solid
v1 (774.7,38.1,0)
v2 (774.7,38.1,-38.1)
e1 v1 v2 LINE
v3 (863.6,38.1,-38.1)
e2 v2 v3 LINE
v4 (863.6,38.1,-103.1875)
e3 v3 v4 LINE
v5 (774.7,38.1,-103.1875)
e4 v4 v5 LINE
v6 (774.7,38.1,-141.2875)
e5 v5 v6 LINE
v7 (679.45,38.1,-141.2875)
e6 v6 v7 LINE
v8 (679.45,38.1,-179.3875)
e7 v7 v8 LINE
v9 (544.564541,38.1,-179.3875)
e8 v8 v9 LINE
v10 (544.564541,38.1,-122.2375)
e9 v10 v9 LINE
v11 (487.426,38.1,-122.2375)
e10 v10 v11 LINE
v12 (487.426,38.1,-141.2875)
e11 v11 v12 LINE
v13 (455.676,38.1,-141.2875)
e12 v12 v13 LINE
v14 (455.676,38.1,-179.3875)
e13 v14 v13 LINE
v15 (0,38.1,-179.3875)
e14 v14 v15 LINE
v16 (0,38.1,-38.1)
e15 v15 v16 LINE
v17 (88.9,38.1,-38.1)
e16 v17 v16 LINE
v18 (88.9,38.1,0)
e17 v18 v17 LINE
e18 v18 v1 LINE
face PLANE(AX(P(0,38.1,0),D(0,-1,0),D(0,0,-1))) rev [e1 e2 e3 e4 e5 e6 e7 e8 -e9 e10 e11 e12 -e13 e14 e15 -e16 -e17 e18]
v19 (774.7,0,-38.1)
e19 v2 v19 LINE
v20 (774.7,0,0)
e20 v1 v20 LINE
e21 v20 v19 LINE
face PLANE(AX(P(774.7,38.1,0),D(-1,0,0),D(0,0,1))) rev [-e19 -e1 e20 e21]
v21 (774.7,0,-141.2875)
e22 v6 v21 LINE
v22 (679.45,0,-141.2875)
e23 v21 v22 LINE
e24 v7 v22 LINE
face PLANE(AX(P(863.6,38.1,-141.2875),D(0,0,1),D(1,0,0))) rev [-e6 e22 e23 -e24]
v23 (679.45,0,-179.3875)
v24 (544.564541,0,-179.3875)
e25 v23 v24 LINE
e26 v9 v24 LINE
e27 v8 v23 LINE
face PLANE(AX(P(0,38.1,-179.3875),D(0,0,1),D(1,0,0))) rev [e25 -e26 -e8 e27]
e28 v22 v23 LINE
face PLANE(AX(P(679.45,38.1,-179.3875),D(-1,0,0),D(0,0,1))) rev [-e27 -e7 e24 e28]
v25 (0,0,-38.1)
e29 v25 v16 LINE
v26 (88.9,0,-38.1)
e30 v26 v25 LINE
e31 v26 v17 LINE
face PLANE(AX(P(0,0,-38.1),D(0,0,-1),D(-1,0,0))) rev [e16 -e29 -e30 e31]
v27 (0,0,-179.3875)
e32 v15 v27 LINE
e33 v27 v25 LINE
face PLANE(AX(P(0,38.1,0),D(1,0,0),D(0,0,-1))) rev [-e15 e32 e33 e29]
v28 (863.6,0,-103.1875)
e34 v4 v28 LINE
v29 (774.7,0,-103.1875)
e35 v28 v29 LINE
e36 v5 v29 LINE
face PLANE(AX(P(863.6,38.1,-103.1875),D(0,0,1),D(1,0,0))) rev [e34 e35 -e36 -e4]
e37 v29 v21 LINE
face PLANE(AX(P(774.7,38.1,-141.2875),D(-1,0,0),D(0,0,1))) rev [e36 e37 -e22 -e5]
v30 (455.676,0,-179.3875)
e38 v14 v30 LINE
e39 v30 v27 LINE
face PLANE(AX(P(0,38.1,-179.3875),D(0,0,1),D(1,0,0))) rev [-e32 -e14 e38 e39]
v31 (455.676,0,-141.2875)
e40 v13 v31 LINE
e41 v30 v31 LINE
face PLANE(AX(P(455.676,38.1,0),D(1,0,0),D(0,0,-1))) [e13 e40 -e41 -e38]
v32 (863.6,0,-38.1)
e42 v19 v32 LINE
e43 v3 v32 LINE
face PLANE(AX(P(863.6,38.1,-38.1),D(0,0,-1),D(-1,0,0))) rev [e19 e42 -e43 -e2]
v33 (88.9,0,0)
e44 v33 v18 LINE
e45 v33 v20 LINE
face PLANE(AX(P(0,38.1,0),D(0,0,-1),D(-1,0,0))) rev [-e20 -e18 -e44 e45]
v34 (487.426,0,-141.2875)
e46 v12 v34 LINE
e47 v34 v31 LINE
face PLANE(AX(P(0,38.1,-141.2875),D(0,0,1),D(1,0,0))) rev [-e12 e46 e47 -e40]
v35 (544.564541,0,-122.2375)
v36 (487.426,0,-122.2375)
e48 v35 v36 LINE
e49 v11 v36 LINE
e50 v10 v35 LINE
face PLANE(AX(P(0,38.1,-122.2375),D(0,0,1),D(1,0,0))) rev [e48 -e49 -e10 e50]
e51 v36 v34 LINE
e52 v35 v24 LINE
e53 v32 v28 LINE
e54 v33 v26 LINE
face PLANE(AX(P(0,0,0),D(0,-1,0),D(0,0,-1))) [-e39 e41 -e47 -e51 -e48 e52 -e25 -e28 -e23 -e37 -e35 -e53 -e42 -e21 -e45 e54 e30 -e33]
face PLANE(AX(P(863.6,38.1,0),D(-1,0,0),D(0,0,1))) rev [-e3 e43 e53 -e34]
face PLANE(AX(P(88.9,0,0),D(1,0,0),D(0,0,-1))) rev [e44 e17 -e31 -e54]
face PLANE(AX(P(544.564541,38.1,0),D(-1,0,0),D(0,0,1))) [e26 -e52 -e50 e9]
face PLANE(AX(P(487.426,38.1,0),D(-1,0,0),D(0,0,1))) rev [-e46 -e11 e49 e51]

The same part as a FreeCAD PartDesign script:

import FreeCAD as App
import Part
import Sketcher
from FreeCAD import Vector
Q = App.Units.Quantity


def add_polygon(sketch, points):
    """Adds a closed chain of lines whose ends are joined by coincident constraints."""
    first, n = sketch.GeometryCount, len(points)
    for a, b in zip(points, points[1:] + points[:1]):
        sketch.addGeometry(Part.LineSegment(App.Vector(*a, 0), App.Vector(*b, 0)), False)
    for i in range(n):
        sketch.addConstraint(Sketcher.Constraint("Coincident", first + i, 2, first + (i + 1) % n, 1))

doc = App.newDocument("Part")
body = doc.addObject("PartDesign::Body", "Body")

sketch1 = body.newObject("Sketcher::SketchObject", "Sketch")
sketch1.AttachmentSupport = (doc.getObject("XZ_Plane"), [""])
sketch1.MapMode = "FlatFace"
add_polygon(sketch1, [(0, -179), (0, 0), (864, 0), (864, -179)])
sketch1.addConstraint(Sketcher.Constraint("Vertical", 0))
sketch1.addConstraint(Sketcher.Constraint("Horizontal", 1))
sketch1.addConstraint(Sketcher.Constraint("Vertical", 2))
sketch1.addConstraint(Sketcher.Constraint("Horizontal", 3))
sketch1.addConstraint(Sketcher.Constraint("Coincident", 0, 2, -1, 1))
sketch1.addConstraint(Sketcher.Constraint("DistanceX", 1, 1, 1, 2, Q("34 in")))
sketch1.addConstraint(Sketcher.Constraint("DistanceY", 0, 1, 0, 2, Q("7.0625 in")))
pad1 = body.newObject("PartDesign::Pad", "Pad")
pad1.Profile = sketch1
pad1.Length = Q("1.5 in")
pad1.Reversed = True

sketch2 = body.newObject("Sketcher::SketchObject", "Sketch001")
sketch2.AttachmentSupport = (doc.getObject("XZ_Plane"), [""])
sketch2.MapMode = "FlatFace"
add_polygon(sketch2, [(775, 0), (775, -38), (864, -38), (864, 0)])
sketch2.addConstraint(Sketcher.Constraint("Vertical", 0))
sketch2.addConstraint(Sketcher.Constraint("Horizontal", 1))
sketch2.addConstraint(Sketcher.Constraint("Vertical", 2))
sketch2.addConstraint(Sketcher.Constraint("Horizontal", 3))
sketch2.addConstraint(Sketcher.Constraint("PointOnObject", 2, 2, -1))
sketch2.addConstraint(Sketcher.Constraint("DistanceX", 1, 1, 1, 2, Q("3.5 in")))
sketch2.addConstraint(Sketcher.Constraint("DistanceY", 0, 2, 0, 1, Q("1.5 in")))
sketch2.addConstraint(Sketcher.Constraint("DistanceX", -1, 1, 1, 2, Q("34 in")))
pocket1 = body.newObject("PartDesign::Pocket", "Pocket")
pocket1.Profile = sketch2
pocket1.Type = "ThroughAll"

sketch3 = body.newObject("Sketcher::SketchObject", "Sketch002")
sketch3.AttachmentSupport = (doc.getObject("XZ_Plane"), [""])
sketch3.MapMode = "FlatFace"
add_polygon(sketch3, [(679, -141), (679, -179), (864, -179), (864, -141)])
sketch3.addConstraint(Sketcher.Constraint("Vertical", 0))
sketch3.addConstraint(Sketcher.Constraint("Horizontal", 1))
sketch3.addConstraint(Sketcher.Constraint("Vertical", 2))
sketch3.addConstraint(Sketcher.Constraint("Horizontal", 3))
sketch3.addConstraint(Sketcher.Constraint("DistanceY", 0, 2, 0, 1, Q("1.5 in")))
sketch3.addConstraint(Sketcher.Constraint("DistanceX", -1, 1, 1, 2, Q("34 in")))
sketch3.addConstraint(Sketcher.Constraint("DistanceX", 1, 1, 1, 2, Q("7.25 in")))
sketch3.addConstraint(Sketcher.Constraint("DistanceY", 0, 2, -1, 1, Q("7.0625 in")))
pocket2 = body.newObject("PartDesign::Pocket", "Pocket001")
pocket2.Profile = sketch3
pocket2.Type = "ThroughAll"

sketch4 = body.newObject("Sketcher::SketchObject", "Sketch003")
sketch4.AttachmentSupport = (doc.getObject("XZ_Plane"), [""])
sketch4.MapMode = "FlatFace"
add_polygon(sketch4, [(545, -179), (545, -122), (487, -122), (487, -141), (456, -141), (456, -179)])
sketch4.addConstraint(Sketcher.Constraint("Vertical", 0))
sketch4.addConstraint(Sketcher.Constraint("Horizontal", 1))
sketch4.addConstraint(Sketcher.Constraint("Vertical", 2))
sketch4.addConstraint(Sketcher.Constraint("Horizontal", 3))
sketch4.addConstraint(Sketcher.Constraint("Vertical", 4))
sketch4.addConstraint(Sketcher.Constraint("Horizontal", 5))
sketch4.addConstraint(Sketcher.Constraint("DistanceY", 4, 2, 4, 1, Q("1.5 in")))
sketch4.addConstraint(Sketcher.Constraint("DistanceX", 3, 2, 3, 1, Q("1.25 in")))
sketch4.addConstraint(Sketcher.Constraint("DistanceY", 0, 1, 0, 2, Q("2.25 in")))
sketch4.addConstraint(Sketcher.Constraint("DistanceX", -1, 1, 1, 2, Q("19.19 in")))
sketch4.addConstraint(Sketcher.Constraint("DistanceY", 0, 2, -1, 1, Q("4.8125 in")))
sketch4.addConstraint(Sketcher.Constraint("DistanceX", 1, 2, 1, 1, Q("57.138541 mm")))
pocket3 = body.newObject("PartDesign::Pocket", "Pocket002")
pocket3.Profile = sketch4
pocket3.Type = "ThroughAll"

sketch5 = body.newObject("Sketcher::SketchObject", "Sketch004")
sketch5.AttachmentSupport = (doc.getObject("XZ_Plane"), [""])
sketch5.MapMode = "FlatFace"
add_polygon(sketch5, [(775, -103), (775, -141), (864, -141), (864, -103)])
sketch5.addConstraint(Sketcher.Constraint("Vertical", 0))
sketch5.addConstraint(Sketcher.Constraint("Horizontal", 1))
sketch5.addConstraint(Sketcher.Constraint("Vertical", 2))
sketch5.addConstraint(Sketcher.Constraint("Horizontal", 3))
sketch5.addConstraint(Sketcher.Constraint("DistanceX", 1, 1, 1, 2, Q("3.5 in")))
sketch5.addConstraint(Sketcher.Constraint("DistanceY", 0, 2, 0, 1, Q("1.5 in")))
sketch5.addConstraint(Sketcher.Constraint("DistanceX", -1, 1, 1, 2, Q("34 in")))
sketch5.addConstraint(Sketcher.Constraint("DistanceY", 0, 2, -1, 1, Q("5.5625 in")))
pocket4 = body.newObject("PartDesign::Pocket", "Pocket003")
pocket4.Profile = sketch5
pocket4.Type = "ThroughAll"

sketch6 = body.newObject("Sketcher::SketchObject", "Sketch005")
sketch6.AttachmentSupport = (doc.getObject("XZ_Plane"), [""])
sketch6.MapMode = "FlatFace"
sketch6.AttachmentOffset = App.Placement(Vector(0, 0, -1.5 * 25.4), App.Rotation())
add_polygon(sketch6, [(0, -38), (0, 0), (89, 0), (89, -38)])
sketch6.addConstraint(Sketcher.Constraint("Vertical", 0))
sketch6.addConstraint(Sketcher.Constraint("Horizontal", 1))
sketch6.addConstraint(Sketcher.Constraint("Vertical", 2))
sketch6.addConstraint(Sketcher.Constraint("Horizontal", 3))
sketch6.addConstraint(Sketcher.Constraint("Coincident", 0, 2, -1, 1))
sketch6.addConstraint(Sketcher.Constraint("DistanceX", 1, 1, 1, 2, Q("3.5 in")))
sketch6.addConstraint(Sketcher.Constraint("DistanceY", 0, 1, 0, 2, Q("1.5 in")))
pocket5 = body.newObject("PartDesign::Pocket", "Pocket004")
pocket5.Profile = sketch6
pocket5.Type = "ThroughAll"
pocket5.Reversed = True

doc.recompute()
